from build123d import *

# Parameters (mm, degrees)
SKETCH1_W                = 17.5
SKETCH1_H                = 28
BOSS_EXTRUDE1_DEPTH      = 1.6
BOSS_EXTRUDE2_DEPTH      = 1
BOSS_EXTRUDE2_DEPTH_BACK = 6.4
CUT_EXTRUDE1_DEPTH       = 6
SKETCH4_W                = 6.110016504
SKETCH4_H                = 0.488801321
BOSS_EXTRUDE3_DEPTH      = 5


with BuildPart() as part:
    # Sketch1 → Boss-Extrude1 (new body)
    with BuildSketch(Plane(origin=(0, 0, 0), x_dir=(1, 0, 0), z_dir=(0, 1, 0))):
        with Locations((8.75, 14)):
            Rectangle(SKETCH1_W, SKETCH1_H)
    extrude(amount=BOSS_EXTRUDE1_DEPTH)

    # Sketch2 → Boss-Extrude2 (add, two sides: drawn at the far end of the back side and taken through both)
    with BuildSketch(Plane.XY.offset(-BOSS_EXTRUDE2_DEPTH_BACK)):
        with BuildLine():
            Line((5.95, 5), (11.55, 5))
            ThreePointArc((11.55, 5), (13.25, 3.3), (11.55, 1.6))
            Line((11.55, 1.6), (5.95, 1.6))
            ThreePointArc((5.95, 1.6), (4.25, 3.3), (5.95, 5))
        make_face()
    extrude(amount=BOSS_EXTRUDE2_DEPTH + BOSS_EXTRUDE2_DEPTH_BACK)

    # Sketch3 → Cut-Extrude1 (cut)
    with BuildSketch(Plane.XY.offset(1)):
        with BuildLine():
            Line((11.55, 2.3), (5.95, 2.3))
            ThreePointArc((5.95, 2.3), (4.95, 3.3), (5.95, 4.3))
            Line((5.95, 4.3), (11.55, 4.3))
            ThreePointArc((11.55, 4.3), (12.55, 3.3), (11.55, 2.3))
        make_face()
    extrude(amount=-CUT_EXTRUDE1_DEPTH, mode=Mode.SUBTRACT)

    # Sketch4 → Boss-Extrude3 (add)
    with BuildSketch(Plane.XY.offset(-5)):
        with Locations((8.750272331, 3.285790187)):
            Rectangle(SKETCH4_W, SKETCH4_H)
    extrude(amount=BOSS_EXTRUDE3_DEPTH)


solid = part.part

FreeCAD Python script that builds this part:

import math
import FreeCAD as App
import Part
import Sketcher
from FreeCAD import Vector
Q = App.Units.Quantity

doc = App.newDocument("Part")
body = doc.addObject("PartDesign::Body", "Body")

# Sketch on XZ plane
sketch1 = doc.addObject("Sketcher::SketchObject", "Sketch")
body.addObject(sketch1)
sketch1.AttachmentSupport = (doc.XZ_Plane, [""])
sketch1.MapMode = "FlatFace"
sketch1.addGeometry(Part.LineSegment(Vector(0, -28, 0), Vector(0, 0, 0)), False)
sketch1.addGeometry(Part.LineSegment(Vector(0, 0, 0), Vector(18, 0, 0)), False)
sketch1.addGeometry(Part.LineSegment(Vector(18, 0, 0), Vector(18, -28, 0)), False)
sketch1.addGeometry(Part.LineSegment(Vector(18, -28, 0), Vector(0, -28, 0)), False)
sketch1.addConstraint(Sketcher.Constraint("Coincident", 0, 2, 1, 1))
sketch1.addConstraint(Sketcher.Constraint("Coincident", 1, 2, 2, 1))
sketch1.addConstraint(Sketcher.Constraint("Coincident", 2, 2, 3, 1))
sketch1.addConstraint(Sketcher.Constraint("Coincident", 3, 2, 0, 1))
sketch1.addConstraint(Sketcher.Constraint("Vertical", 0))
sketch1.addConstraint(Sketcher.Constraint("Horizontal", 1))
sketch1.addConstraint(Sketcher.Constraint("Vertical", 2))
sketch1.addConstraint(Sketcher.Constraint("Horizontal", 3))
sketch1.addConstraint(Sketcher.Constraint("Coincident", 0, 2, -1, 1))
sketch1.addConstraint(Sketcher.Constraint("DistanceY", 0, 1, 0, 2, Q("28 mm")))
sketch1.addConstraint(Sketcher.Constraint("DistanceX", 1, 1, 1, 2, Q("17.5 mm")))
pad1 = doc.addObject("PartDesign::Pad", "Pad")
body.addObject(pad1)
pad1.Profile = sketch1
pad1.Length = 1.6
pad1.Reversed = True

# Sketch on XY plane
sketch2 = doc.addObject("Sketcher::SketchObject", "Sketch001")
body.addObject(sketch2)
sketch2.AttachmentSupport = (doc.XY_Plane, [""])
sketch2.MapMode = "FlatFace"
sketch2.addGeometry(Part.LineSegment(Vector(11.6, 5, 0), Vector(6, 5, 0)), False)
sketch2.addGeometry(Part.ArcOfCircle(Part.Circle(Vector(6, 3.3, 0), Vector(0, 0, 1), 1.7), math.radians(90), math.radians(270)), False)
sketch2.addGeometry(Part.LineSegment(Vector(6, 1.6, 0), Vector(11.6, 1.6, 0)), False)
sketch2.addGeometry(Part.ArcOfCircle(Part.Circle(Vector(11.6, 3.3, 0), Vector(0, 0, 1), 1.7), math.radians(-90), math.radians(90)), False)
sketch2.addConstraint(Sketcher.Constraint("Tangent", 0, 2, 1, 1))
sketch2.addConstraint(Sketcher.Constraint("Tangent", 1, 2, 2, 1))
sketch2.addConstraint(Sketcher.Constraint("Tangent", 2, 2, 3, 1))
sketch2.addConstraint(Sketcher.Constraint("Tangent", 3, 2, 0, 1))
sketch2.addConstraint(Sketcher.Constraint("Horizontal", 0))
sketch2.addConstraint(Sketcher.Constraint("Horizontal", 2))
sketch2.addConstraint(Sketcher.Constraint("Radius", 1, Q("1.7 mm")))
sketch2.addConstraint(Sketcher.Constraint("DistanceX", 0, 2, 0, 1, Q("5.6 mm")))
sketch2.addConstraint(Sketcher.Constraint("DistanceY", -1, 1, 0, 2, Q("5 mm")))
sketch2.addConstraint(Sketcher.Constraint("DistanceX", -1, 1, 1, 3, Q("5.95 mm")))
pad2 = doc.addObject("PartDesign::Pad", "Pad001")
body.addObject(pad2)
pad2.Profile = sketch2
pad2.Type = "TwoLengths"
pad2.Length = 1
pad2.Length2 = 6.4

# Sketch on XY plane
sketch3 = doc.addObject("Sketcher::SketchObject", "Sketch002")
body.addObject(sketch3)
sketch3.AttachmentSupport = (doc.XY_Plane, [""])
sketch3.MapMode = "FlatFace"
sketch3.AttachmentOffset = App.Placement(Vector(0, 0, 1), App.Rotation())
sketch3.addGeometry(Part.LineSegment(Vector(6, 2.3, 0), Vector(11.6, 2.3, 0)), False)
sketch3.addGeometry(Part.ArcOfCircle(Part.Circle(Vector(11.6, 3.3, 0), Vector(0, 0, 1), 1), math.radians(-90), math.radians(90)), False)
sketch3.addGeometry(Part.LineSegment(Vector(11.6, 4.3, 0), Vector(6, 4.3, 0)), False)
sketch3.addGeometry(Part.ArcOfCircle(Part.Circle(Vector(6, 3.3, 0), Vector(0, 0, 1), 1), math.radians(90), math.radians(270)), False)
sketch3.addConstraint(Sketcher.Constraint("Tangent", 0, 2, 1, 1))
sketch3.addConstraint(Sketcher.Constraint("Tangent", 1, 2, 2, 1))
sketch3.addConstraint(Sketcher.Constraint("Tangent", 2, 2, 3, 1))
sketch3.addConstraint(Sketcher.Constraint("Tangent", 3, 2, 0, 1))
sketch3.addConstraint(Sketcher.Constraint("Horizontal", 0))
sketch3.addConstraint(Sketcher.Constraint("Horizontal", 2))
sketch3.addConstraint(Sketcher.Constraint("Radius", 1, Q("1 mm")))
sketch3.addConstraint(Sketcher.Constraint("DistanceX", 0, 1, 0, 2, Q("5.6 mm")))
sketch3.addConstraint(Sketcher.Constraint("DistanceY", -1, 1, 1, 3, Q("3.3 mm")))
sketch3.addConstraint(Sketcher.Constraint("DistanceX", -1, 1, 1, 3, Q("11.55 mm")))
pocket1 = doc.addObject("PartDesign::Pocket", "Pocket")
body.addObject(pocket1)
pocket1.Profile = sketch3
pocket1.Length = 6

# Sketch on XY plane
sketch4 = doc.addObject("Sketcher::SketchObject", "Sketch003")
body.addObject(sketch4)
sketch4.AttachmentSupport = (doc.XY_Plane, [""])
sketch4.MapMode = "FlatFace"
sketch4.AttachmentOffset = App.Placement(Vector(0, 0, -5), App.Rotation())
sketch4.addGeometry(Part.LineSegment(Vector(5.7, 3.53, 0), Vector(5.7, 3.04, 0)), False)
sketch4.addGeometry(Part.LineSegment(Vector(5.7, 3.04, 0), Vector(11.81, 3.04, 0)), False)
sketch4.addGeometry(Part.LineSegment(Vector(11.81, 3.04, 0), Vector(11.81, 3.53, 0)), False)
sketch4.addGeometry(Part.LineSegment(Vector(11.81, 3.53, 0), Vector(5.7, 3.53, 0)), False)
sketch4.addConstraint(Sketcher.Constraint("Coincident", 0, 2, 1, 1))
sketch4.addConstraint(Sketcher.Constraint("Coincident", 1, 2, 2, 1))
sketch4.addConstraint(Sketcher.Constraint("Coincident", 2, 2, 3, 1))
sketch4.addConstraint(Sketcher.Constraint("Coincident", 3, 2, 0, 1))
sketch4.addConstraint(Sketcher.Constraint("Vertical", 0))
sketch4.addConstraint(Sketcher.Constraint("Horizontal", 1))
sketch4.addConstraint(Sketcher.Constraint("Vertical", 2))
sketch4.addConstraint(Sketcher.Constraint("Horizontal", 3))
sketch4.addConstraint(Sketcher.Constraint("DistanceY", 0, 2, 0, 1, Q("0.488801 mm")))
sketch4.addConstraint(Sketcher.Constraint("DistanceX", 1, 1, 1, 2, Q("6.110017 mm")))
sketch4.addConstraint(Sketcher.Constraint("DistanceY", -1, 1, 0, 2, Q("3.04139 mm")))
sketch4.addConstraint(Sketcher.Constraint("DistanceX", -1, 1, 1, 2, Q("11.805281 mm")))
pad3 = doc.addObject("PartDesign::Pad", "Pad002")
body.addObject(pad3)
pad3.Profile = sketch4
pad3.Length = 5

doc.recompute()
